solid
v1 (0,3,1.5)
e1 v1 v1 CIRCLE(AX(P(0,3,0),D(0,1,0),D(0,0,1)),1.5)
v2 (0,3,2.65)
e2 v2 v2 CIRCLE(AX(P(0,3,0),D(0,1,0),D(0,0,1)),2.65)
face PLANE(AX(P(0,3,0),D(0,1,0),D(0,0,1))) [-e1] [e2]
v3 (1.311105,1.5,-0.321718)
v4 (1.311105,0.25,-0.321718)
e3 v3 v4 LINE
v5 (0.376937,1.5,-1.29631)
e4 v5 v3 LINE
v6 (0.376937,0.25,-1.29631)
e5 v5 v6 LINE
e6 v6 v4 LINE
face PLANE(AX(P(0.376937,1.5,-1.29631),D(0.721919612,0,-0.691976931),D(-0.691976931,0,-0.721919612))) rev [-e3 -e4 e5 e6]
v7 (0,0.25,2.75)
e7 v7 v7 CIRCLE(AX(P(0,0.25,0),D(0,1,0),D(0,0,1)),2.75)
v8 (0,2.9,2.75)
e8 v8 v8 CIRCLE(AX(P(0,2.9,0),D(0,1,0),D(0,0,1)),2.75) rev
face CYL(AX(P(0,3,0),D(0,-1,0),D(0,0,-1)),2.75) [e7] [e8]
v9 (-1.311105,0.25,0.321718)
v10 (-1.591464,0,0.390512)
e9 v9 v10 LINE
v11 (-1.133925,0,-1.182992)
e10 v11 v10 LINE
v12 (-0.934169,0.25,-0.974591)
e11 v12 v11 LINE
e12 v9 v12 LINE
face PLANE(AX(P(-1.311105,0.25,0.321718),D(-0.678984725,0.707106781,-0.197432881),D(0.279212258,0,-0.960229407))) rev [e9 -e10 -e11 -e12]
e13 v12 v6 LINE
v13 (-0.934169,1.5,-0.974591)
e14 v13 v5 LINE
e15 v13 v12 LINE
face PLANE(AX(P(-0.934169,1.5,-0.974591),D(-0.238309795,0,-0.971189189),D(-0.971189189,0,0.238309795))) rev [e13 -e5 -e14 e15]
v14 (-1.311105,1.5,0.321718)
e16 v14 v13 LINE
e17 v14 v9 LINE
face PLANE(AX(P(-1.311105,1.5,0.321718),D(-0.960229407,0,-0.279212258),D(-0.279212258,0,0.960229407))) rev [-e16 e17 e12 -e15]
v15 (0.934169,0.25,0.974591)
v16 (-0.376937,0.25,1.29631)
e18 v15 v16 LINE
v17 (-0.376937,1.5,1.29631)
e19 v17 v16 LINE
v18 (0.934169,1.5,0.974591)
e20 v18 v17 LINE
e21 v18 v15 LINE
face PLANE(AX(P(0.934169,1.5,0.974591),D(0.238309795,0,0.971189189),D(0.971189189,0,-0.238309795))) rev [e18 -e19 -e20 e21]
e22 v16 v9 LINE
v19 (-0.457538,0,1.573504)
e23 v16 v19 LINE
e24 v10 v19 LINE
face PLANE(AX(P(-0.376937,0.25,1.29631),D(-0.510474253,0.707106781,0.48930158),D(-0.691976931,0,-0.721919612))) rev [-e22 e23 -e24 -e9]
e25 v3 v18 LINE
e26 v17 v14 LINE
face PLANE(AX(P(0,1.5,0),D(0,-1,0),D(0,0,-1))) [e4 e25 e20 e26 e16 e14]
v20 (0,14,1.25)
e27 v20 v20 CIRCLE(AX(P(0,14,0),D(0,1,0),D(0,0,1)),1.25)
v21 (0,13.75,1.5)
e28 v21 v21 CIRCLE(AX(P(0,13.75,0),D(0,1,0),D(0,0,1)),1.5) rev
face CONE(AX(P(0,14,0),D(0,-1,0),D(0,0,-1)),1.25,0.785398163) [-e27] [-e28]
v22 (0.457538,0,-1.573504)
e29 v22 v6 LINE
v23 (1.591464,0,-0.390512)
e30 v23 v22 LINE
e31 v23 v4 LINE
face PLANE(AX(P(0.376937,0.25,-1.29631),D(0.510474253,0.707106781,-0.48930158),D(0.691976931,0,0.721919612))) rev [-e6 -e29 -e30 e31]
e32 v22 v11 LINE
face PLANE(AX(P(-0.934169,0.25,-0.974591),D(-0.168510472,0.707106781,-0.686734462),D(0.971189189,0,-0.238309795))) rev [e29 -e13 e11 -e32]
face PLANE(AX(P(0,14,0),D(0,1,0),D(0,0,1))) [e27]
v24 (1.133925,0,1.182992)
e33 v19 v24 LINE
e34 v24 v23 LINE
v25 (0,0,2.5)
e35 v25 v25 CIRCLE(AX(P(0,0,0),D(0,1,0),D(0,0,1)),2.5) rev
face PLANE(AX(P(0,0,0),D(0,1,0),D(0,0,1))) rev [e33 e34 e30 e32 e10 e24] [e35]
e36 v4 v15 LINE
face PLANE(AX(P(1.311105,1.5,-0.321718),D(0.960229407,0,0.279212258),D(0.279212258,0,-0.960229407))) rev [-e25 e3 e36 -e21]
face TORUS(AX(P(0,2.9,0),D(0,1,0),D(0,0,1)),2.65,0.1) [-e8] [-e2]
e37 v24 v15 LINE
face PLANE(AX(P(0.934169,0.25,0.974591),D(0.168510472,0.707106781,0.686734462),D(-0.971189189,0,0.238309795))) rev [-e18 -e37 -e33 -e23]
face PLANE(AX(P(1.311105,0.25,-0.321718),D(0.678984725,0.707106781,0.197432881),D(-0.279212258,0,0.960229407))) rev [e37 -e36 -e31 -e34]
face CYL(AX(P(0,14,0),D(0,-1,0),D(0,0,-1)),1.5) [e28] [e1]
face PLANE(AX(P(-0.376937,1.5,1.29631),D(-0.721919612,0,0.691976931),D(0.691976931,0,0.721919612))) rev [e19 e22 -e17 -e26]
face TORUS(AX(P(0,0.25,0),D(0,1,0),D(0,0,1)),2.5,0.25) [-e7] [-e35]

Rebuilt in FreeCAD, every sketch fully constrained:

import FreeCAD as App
import Part
import Sketcher
from FreeCAD import Vector


def edges_at(feature, points):
    """Names of the edges that pass closest to the given points."""
    edges = feature.Shape.Edges
    near = lambda p: min(range(len(edges)), key=lambda i: edges[i].distToShape(Part.Vertex(*p))[0])
    return sorted({f"Edge{near(p) + 1}" for p in points})

doc = App.newDocument("Part")
params = doc.addObject("Spreadsheet::Sheet", "Params")
for row, (alias, value) in enumerate([
    ("sketch1_diameter", "5.5 mm"),
    ("pad1_length", "3 mm"),
    ("sketch2_diameter", "3 mm"),
    ("pad2_length", "11 mm"),
    ("sketch3_length", "1.35 mm"),
    ("pocket1_length", "1.5 mm"),
    ("chamfer_size", "0.25 mm"),
    ("fillet_radius", "0.25 mm"),
    ("chamfer2_size", "0.25 mm"),
    ("fillet2_radius", "0.1 mm"),
], start=1):
    params.set(f"A{row}", alias)
    params.set(f"B{row}", "=" + value)
    params.setAlias(f"B{row}", alias)

body = doc.addObject("PartDesign::Body", "Body")

# Sketch on XZ plane
sketch1 = doc.addObject("Sketcher::SketchObject", "Sketch")
body.addObject(sketch1)
sketch1.AttachmentSupport = (doc.XZ_Plane, [""])
sketch1.MapMode = "FlatFace"
sketch1.addGeometry(Part.Circle(Vector(0, 0, 0), Vector(0, 0, 1), 2.8), False)
sketch1.addConstraint(Sketcher.Constraint("Coincident", 0, 3, -1, 1))
sketch1.addConstraint(Sketcher.Constraint("Diameter", 0, 5.5))
sketch1.setExpression("Constraints[1]", "Params.sketch1_diameter")
pad1 = doc.addObject("PartDesign::Pad", "Pad")
body.addObject(pad1)
pad1.Profile = sketch1
pad1.setExpression("Length", "Params.pad1_length")
pad1.Reversed = True

# Sketch on XZ plane
sketch2 = doc.addObject("Sketcher::SketchObject", "Sketch001")
body.addObject(sketch2)
sketch2.AttachmentSupport = (doc.XZ_Plane, [""])
sketch2.MapMode = "FlatFace"
sketch2.AttachmentOffset = App.Placement(Vector(0, 0, -3), App.Rotation())
sketch2.addGeometry(Part.Circle(Vector(0, 0, 0), Vector(0, 0, 1), 1.5), False)
sketch2.addConstraint(Sketcher.Constraint("Coincident", 0, 3, -1, 1))
sketch2.addConstraint(Sketcher.Constraint("Diameter", 0, 3.0))
sketch2.setExpression("Constraints[1]", "Params.sketch2_diameter")
pad2 = doc.addObject("PartDesign::Pad", "Pad001")
body.addObject(pad2)
pad2.Profile = sketch2
pad2.setExpression("Length", "Params.pad2_length")
pad2.Reversed = True

# Sketch on XZ plane
sketch3 = doc.addObject("Sketcher::SketchObject", "Sketch002")
body.addObject(sketch3)
sketch3.AttachmentSupport = (doc.XZ_Plane, [""])
sketch3.MapMode = "FlatFace"
sketch3.addGeometry(Part.LineSegment(Vector(0.9, 1, 0), Vector(-0.4, 1.3, 0)), False)
sketch3.addGeometry(Part.LineSegment(Vector(-0.4, 1.3, 0), Vector(-1.3, 0.3, 0)), False)
sketch3.addGeometry(Part.LineSegment(Vector(-1.3, 0.3, 0), Vector(-0.9, -1, 0)), False)
sketch3.addGeometry(Part.LineSegment(Vector(-0.9, -1, 0), Vector(0.4, -1.3, 0)), False)
sketch3.addGeometry(Part.LineSegment(Vector(0.4, -1.3, 0), Vector(1.3, -0.3, 0)), False)
sketch3.addGeometry(Part.LineSegment(Vector(1.3, -0.3, 0), Vector(0.9, 1, 0)), False)
sketch3.addConstraint(Sketcher.Constraint("Coincident", 0, 2, 1, 1))
sketch3.addConstraint(Sketcher.Constraint("Coincident", 1, 2, 2, 1))
sketch3.addConstraint(Sketcher.Constraint("Coincident", 2, 2, 3, 1))
sketch3.addConstraint(Sketcher.Constraint("Coincident", 3, 2, 4, 1))
sketch3.addConstraint(Sketcher.Constraint("Coincident", 4, 2, 5, 1))
sketch3.addConstraint(Sketcher.Constraint("Coincident", 5, 2, 0, 1))
sketch3.addConstraint(Sketcher.Constraint("Symmetric", 0, 2, 3, 2, -1, 1))
sketch3.addConstraint(Sketcher.Constraint("Symmetric", 1, 2, 4, 2, -1, 1))
sketch3.addConstraint(Sketcher.Constraint("Symmetric", 2, 2, 5, 2, -1, 1))
sketch3.addConstraint(Sketcher.Constraint("Equal", 0, 1))
sketch3.addConstraint(Sketcher.Constraint("Equal", 1, 2))
sketch3.addConstraint(Sketcher.Constraint("Distance", 0, 1.35))
sketch3.addConstraint(Sketcher.Constraint("DistanceY", 2, 2, 0, 2, 2.270901))
sketch3.addConstraint(Sketcher.Constraint("DistanceY", -1, 1, 0, 2, 1.29631))
sketch3.addConstraint(Sketcher.Constraint("DistanceY", -1, 1, 1, 2, 0.321718))
sketch3.setExpression("Constraints[11]", "Params.sketch3_length")
pocket1 = doc.addObject("PartDesign::Pocket", "Pocket")
body.addObject(pocket1)
pocket1.Profile = sketch3
pocket1.setExpression("Length", "Params.pocket1_length")
doc.recompute()

chamfer = doc.addObject("PartDesign::Chamfer", "Chamfer")
body.addObject(chamfer)
chamfer.Base = (pocket1, edges_at(pocket1, [
    (1.123, 0, 0.326),
    (0.279, 0, 1.135),
    (-0.844, 0, 0.809),
    (-1.123, 0, -0.326),
    (-0.279, 0, -1.135),
    (0.844, 0, -0.809),
]))
chamfer.setExpression("Size", "Params.chamfer_size")
doc.recompute()

fillet = doc.addObject("PartDesign::Fillet", "Fillet")
body.addObject(fillet)
fillet.Base = (chamfer, edges_at(chamfer, [(0, 0, -2.75)]))
fillet.setExpression("Radius", "Params.fillet_radius")
doc.recompute()

chamfer2 = doc.addObject("PartDesign::Chamfer", "Chamfer001")
body.addObject(chamfer2)
chamfer2.Base = (fillet, edges_at(fillet, [(0, 14, -1.5)]))
chamfer2.setExpression("Size", "Params.chamfer2_size")
doc.recompute()

fillet2 = doc.addObject("PartDesign::Fillet", "Fillet001")
body.addObject(fillet2)
fillet2.Base = (chamfer2, edges_at(chamfer2, [(0, 3, -2.75)]))
fillet2.setExpression("Radius", "Params.fillet2_radius")

doc.recompute()
